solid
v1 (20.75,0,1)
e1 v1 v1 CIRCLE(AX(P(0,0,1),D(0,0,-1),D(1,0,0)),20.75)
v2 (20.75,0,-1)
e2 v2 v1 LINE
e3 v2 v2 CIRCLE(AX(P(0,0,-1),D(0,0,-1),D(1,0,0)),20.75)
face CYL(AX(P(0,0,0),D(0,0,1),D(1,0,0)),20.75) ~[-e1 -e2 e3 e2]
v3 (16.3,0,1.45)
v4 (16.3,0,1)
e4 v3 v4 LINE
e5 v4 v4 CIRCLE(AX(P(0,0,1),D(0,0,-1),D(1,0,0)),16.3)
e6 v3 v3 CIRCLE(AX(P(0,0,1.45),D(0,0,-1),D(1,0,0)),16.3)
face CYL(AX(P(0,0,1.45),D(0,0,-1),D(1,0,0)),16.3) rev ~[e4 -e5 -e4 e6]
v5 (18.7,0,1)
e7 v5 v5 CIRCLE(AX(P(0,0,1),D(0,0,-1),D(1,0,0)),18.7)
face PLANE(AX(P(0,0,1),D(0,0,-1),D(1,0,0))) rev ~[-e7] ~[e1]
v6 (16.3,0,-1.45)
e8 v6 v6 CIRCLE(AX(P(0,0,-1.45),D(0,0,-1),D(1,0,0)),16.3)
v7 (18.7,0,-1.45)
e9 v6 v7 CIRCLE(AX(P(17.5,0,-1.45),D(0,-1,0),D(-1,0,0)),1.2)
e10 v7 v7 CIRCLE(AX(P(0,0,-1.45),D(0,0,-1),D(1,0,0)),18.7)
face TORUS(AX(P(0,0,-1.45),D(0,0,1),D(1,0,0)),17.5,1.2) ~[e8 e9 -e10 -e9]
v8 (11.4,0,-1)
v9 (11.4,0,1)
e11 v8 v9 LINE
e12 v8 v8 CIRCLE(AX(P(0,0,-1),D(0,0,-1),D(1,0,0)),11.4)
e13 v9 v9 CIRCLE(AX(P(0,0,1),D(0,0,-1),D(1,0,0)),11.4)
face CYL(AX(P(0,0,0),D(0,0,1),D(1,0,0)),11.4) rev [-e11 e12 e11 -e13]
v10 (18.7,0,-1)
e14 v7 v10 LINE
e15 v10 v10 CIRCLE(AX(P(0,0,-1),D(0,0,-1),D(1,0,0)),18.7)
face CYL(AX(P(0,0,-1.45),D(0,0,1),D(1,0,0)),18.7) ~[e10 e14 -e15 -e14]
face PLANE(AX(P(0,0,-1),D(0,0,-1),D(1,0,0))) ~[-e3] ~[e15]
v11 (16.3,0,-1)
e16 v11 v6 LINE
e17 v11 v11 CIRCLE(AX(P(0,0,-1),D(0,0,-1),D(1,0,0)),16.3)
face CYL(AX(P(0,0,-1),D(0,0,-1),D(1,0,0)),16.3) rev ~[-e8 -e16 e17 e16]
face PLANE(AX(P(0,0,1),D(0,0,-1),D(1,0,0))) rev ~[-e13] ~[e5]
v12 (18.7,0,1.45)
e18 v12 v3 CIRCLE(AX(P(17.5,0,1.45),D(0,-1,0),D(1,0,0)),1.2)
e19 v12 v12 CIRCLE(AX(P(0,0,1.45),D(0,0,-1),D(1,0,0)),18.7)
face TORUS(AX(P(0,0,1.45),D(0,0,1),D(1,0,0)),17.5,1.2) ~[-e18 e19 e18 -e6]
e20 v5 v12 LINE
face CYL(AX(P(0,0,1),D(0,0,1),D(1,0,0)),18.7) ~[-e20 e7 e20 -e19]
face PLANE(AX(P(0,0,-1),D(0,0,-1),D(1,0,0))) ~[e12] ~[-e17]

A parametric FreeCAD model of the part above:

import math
import FreeCAD as App
import Part
import Sketcher
from FreeCAD import Vector

doc = App.newDocument("Part")
body = doc.addObject("PartDesign::Body", "Body")

# Sketch on XZ plane
sketch1 = body.newObject("Sketcher::SketchObject", "Sketch")
sketch1.AttachmentSupport = (doc.getObject("XZ_Plane"), [""])
sketch1.MapMode = "FlatFace"
sketch1.addGeometry(Part.LineSegment(Vector(11.4, 1, 0), Vector(11.4, -1, 0)), False)
sketch1.addGeometry(Part.LineSegment(Vector(11.4, -1, 0), Vector(16.3, -1, 0)), False)
sketch1.addGeometry(Part.LineSegment(Vector(16.3, -1, 0), Vector(16.3, -1.45, 0)), False)
sketch1.addGeometry(Part.ArcOfCircle(Part.Circle(Vector(17.5, -1.45, 0), Vector(0, 0, 1), 1.2), math.radians(180), math.radians(360)), False)
sketch1.addGeometry(Part.LineSegment(Vector(18.7, -1.45, 0), Vector(18.7, -1, 0)), False)
sketch1.addGeometry(Part.LineSegment(Vector(18.7, -1, 0), Vector(20.75, -1, 0)), False)
sketch1.addGeometry(Part.LineSegment(Vector(20.75, -1, 0), Vector(20.75, 1, 0)), False)
sketch1.addGeometry(Part.LineSegment(Vector(20.75, 1, 0), Vector(18.7, 1, 0)), False)
sketch1.addGeometry(Part.LineSegment(Vector(18.7, 1, 0), Vector(18.7, 1.45, 0)), False)
sketch1.addGeometry(Part.ArcOfCircle(Part.Circle(Vector(17.5, 1.45, 0), Vector(0, 0, 1), 1.2), math.radians(0), math.radians(180)), False)
sketch1.addGeometry(Part.LineSegment(Vector(16.3, 1.45, 0), Vector(16.3, 1, 0)), False)
sketch1.addGeometry(Part.LineSegment(Vector(16.3, 1, 0), Vector(11.4, 1, 0)), False)
sketch1.addConstraint(Sketcher.Constraint("Coincident", 0, 2, 1, 1))
sketch1.addConstraint(Sketcher.Constraint("Coincident", 1, 2, 2, 1))
sketch1.addConstraint(Sketcher.Constraint("Tangent", 2, 2, 3, 1))
sketch1.addConstraint(Sketcher.Constraint("Tangent", 3, 2, 4, 1))
sketch1.addConstraint(Sketcher.Constraint("Coincident", 4, 2, 5, 1))
sketch1.addConstraint(Sketcher.Constraint("Coincident", 5, 2, 6, 1))
sketch1.addConstraint(Sketcher.Constraint("Coincident", 6, 2, 7, 1))
sketch1.addConstraint(Sketcher.Constraint("Coincident", 7, 2, 8, 1))
sketch1.addConstraint(Sketcher.Constraint("Tangent", 8, 2, 9, 1))
sketch1.addConstraint(Sketcher.Constraint("Tangent", 9, 2, 10, 1))
sketch1.addConstraint(Sketcher.Constraint("Coincident", 10, 2, 11, 1))
sketch1.addConstraint(Sketcher.Constraint("Coincident", 11, 2, 0, 1))
sketch1.addConstraint(Sketcher.Constraint("Vertical", 0))
sketch1.addConstraint(Sketcher.Constraint("Horizontal", 1))
sketch1.addConstraint(Sketcher.Constraint("Vertical", 2))
sketch1.addConstraint(Sketcher.Constraint("Vertical", 4))
sketch1.addConstraint(Sketcher.Constraint("Horizontal", 5))
sketch1.addConstraint(Sketcher.Constraint("Vertical", 6))
sketch1.addConstraint(Sketcher.Constraint("Horizontal", 7))
sketch1.addConstraint(Sketcher.Constraint("Vertical", 8))
sketch1.addConstraint(Sketcher.Constraint("Vertical", 10))
sketch1.addConstraint(Sketcher.Constraint("Horizontal", 11))
sketch1.addConstraint(Sketcher.Constraint("Equal", 3, 9))
sketch1.addConstraint(Sketcher.Constraint("Symmetric", 3, 3, 9, 3, -1))
sketch1.addConstraint(Sketcher.Constraint("Horizontal", 1, 2, 4, 2))
sketch1.addConstraint(Sketcher.Constraint("Horizontal", 7, 2, 10, 2))
sketch1.addConstraint(Sketcher.Constraint("Equal", 4, 8))
sketch1.addConstraint(Sketcher.Constraint("Radius", 3, 1.2))
sketch1.addConstraint(Sketcher.Constraint("DistanceY", 0, 2, 0, 1, 2.0))
sketch1.addConstraint(Sketcher.Constraint("DistanceX", 1, 1, 1, 2, 4.9))
sketch1.addConstraint(Sketcher.Constraint("DistanceX", 5, 1, 5, 2, 2.05))
sketch1.addConstraint(Sketcher.Constraint("DistanceY", 2, 2, 2, 1, 0.45))
sketch1.addConstraint(Sketcher.Constraint("DistanceX", -1, 1, 3, 3, 17.5))
revolution = body.newObject("PartDesign::Revolution", "Revolution")
revolution.Profile = sketch1
revolution.ReferenceAxis = (sketch1, ["V_Axis"])
revolution.Angle = 360

doc.recompute()
